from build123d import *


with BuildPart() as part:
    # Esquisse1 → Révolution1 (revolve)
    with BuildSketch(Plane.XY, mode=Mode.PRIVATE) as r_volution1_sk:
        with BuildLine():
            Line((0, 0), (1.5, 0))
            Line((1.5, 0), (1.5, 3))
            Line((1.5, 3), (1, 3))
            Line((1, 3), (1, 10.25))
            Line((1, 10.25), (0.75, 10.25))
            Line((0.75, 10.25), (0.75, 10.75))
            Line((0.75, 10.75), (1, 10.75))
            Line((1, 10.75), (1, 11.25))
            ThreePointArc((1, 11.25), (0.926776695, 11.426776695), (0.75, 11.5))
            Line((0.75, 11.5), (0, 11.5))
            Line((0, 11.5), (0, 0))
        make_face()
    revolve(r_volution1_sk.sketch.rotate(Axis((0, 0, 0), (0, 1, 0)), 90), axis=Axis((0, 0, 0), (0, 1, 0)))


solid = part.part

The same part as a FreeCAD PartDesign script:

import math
import FreeCAD as App
import Part
import Sketcher

V = App.Vector
Q = App.Units.Quantity

doc = App.newDocument("Part")
body = doc.addObject("PartDesign::Body", "Body")

# Sketch on XY plane
sketch1 = doc.addObject("Sketcher::SketchObject", "Sketch")
body.addObject(sketch1)
sketch1.AttachmentSupport = (doc.XY_Plane, [""])
sketch1.MapMode = "FlatFace"
sketch1.addGeometry([
    Part.LineSegment(V(0, 0, 0), V(1.5, 0, 0)),  # 0
    Part.LineSegment(V(1.5, 0, 0), V(1.5, 3, 0)),  # 1
    Part.LineSegment(V(1.5, 3, 0), V(1, 3, 0)),  # 2
    Part.LineSegment(V(1, 3, 0), V(1, 10.25, 0)),  # 3
    Part.LineSegment(V(1, 10.25, 0), V(0.75, 10.25, 0)),  # 4
    Part.LineSegment(V(0.75, 10.25, 0), V(0.75, 10.75, 0)),  # 5
    Part.LineSegment(V(0.75, 10.75, 0), V(1, 10.75, 0)),  # 6
    Part.LineSegment(V(1, 10.75, 0), V(1, 11.25, 0)),  # 7
    Part.ArcOfCircle(Part.Circle(V(0.75, 11.25, 0), V(0, 0, 1), 0.25), math.radians(0), math.radians(90)),  # 8
    Part.LineSegment(V(0.75, 11.5, 0), V(0, 11.5, 0)),  # 9
    Part.LineSegment(V(0, 11.5, 0), V(0, 0, 0)),  # 10
], False)
sketch1.addConstraint([
    Sketcher.Constraint("Coincident", 0, 2, 1, 1),
    Sketcher.Constraint("Coincident", 1, 2, 2, 1),
    Sketcher.Constraint("Coincident", 2, 2, 3, 1),
    Sketcher.Constraint("Coincident", 3, 2, 4, 1),
    Sketcher.Constraint("Coincident", 4, 2, 5, 1),
    Sketcher.Constraint("Coincident", 5, 2, 6, 1),
    Sketcher.Constraint("Coincident", 6, 2, 7, 1),
    Sketcher.Constraint("Tangent", 7, 2, 8, 1),
    Sketcher.Constraint("Tangent", 8, 2, 9, 1),
    Sketcher.Constraint("Coincident", 9, 2, 10, 1),
    Sketcher.Constraint("Coincident", 10, 2, 0, 1),
    Sketcher.Constraint("Horizontal", 0),
    Sketcher.Constraint("Vertical", 1),
    Sketcher.Constraint("Horizontal", 2),
    Sketcher.Constraint("Vertical", 3),
    Sketcher.Constraint("Horizontal", 4),
    Sketcher.Constraint("Vertical", 5),
    Sketcher.Constraint("Horizontal", 6),
    Sketcher.Constraint("Vertical", 7),
    Sketcher.Constraint("Horizontal", 9),
    Sketcher.Constraint("Vertical", 10),
    Sketcher.Constraint("Coincident", 10, 2, -1, 1),
    Sketcher.Constraint("Vertical", 8, 3, 4, 2),
    Sketcher.Constraint("Vertical", 3, 2, 6, 2),
    Sketcher.Constraint("Equal", 2, 5),
    Sketcher.Constraint("Equal", 5, 7),
    Sketcher.Constraint("DistanceY", 1, 1, 1, 2, Q("3 mm")),
    Sketcher.Constraint("Radius", 8, Q("0.25 mm")),
    Sketcher.Constraint("DistanceX", 0, 1, 0, 2, Q("1.5 mm")),
    Sketcher.Constraint("DistanceX", 2, 2, 2, 1, Q("0.5 mm")),
    Sketcher.Constraint("DistanceY", 10, 2, 10, 1, Q("11.5 mm")),
])
revolution = doc.addObject("PartDesign::Revolution", "Revolution")
body.addObject(revolution)
revolution.Profile = sketch1
revolution.ReferenceAxis = (sketch1, ["V_Axis"])
revolution.Angle = 360

doc.recompute()
